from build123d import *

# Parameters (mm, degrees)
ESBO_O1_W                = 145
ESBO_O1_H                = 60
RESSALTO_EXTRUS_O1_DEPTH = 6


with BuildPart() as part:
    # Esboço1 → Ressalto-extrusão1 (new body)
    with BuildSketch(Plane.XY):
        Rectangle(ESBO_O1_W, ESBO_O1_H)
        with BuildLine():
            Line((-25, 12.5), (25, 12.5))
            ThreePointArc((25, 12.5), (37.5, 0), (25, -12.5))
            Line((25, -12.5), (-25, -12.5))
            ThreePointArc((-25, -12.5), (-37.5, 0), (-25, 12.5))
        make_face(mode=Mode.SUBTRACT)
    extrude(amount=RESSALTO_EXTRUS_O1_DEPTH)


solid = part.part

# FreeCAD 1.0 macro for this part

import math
import FreeCAD as App
import Part
import Sketcher

V = App.Vector


def add_polygon(sketch, points):
    """Adds a closed chain of lines whose ends are joined by coincident constraints."""
    first, n = sketch.GeometryCount, len(points)
    for a, b in zip(points, points[1:] + points[:1]):
        sketch.addGeometry(Part.LineSegment(App.Vector(*a, 0), App.Vector(*b, 0)), False)
    for i in range(n):
        sketch.addConstraint(Sketcher.Constraint("Coincident", first + i, 2, first + (i + 1) % n, 1))

doc = App.newDocument("Part")
body = doc.addObject("PartDesign::Body", "Body")

sketch1 = body.newObject("Sketcher::SketchObject", "Sketch")
sketch1.AttachmentSupport = (doc.getObject("XY_Plane"), [""])
sketch1.MapMode = "FlatFace"
add_polygon(sketch1, [(-72.5, 30), (-72.5, -30), (72.5, -30), (72.5, 30)])
sketch1.addGeometry(Part.ArcOfCircle(Part.Circle(V(-25, 0, 0), V(0, 0, 1), 12.5), math.radians(90), math.radians(270)), False)
sketch1.addGeometry(Part.LineSegment(V(-25, 12.5, 0), V(25, 12.5, 0)), False)
sketch1.addGeometry(Part.ArcOfCircle(Part.Circle(V(25, 0, 0), V(0, 0, 1), 12.5), math.radians(-90), math.radians(90)), False)
sketch1.addGeometry(Part.LineSegment(V(25, -12.5, 0), V(-25, -12.5, 0)), False)
sketch1.addConstraint([
    Sketcher.Constraint("Tangent", 4, 1, 5, 1),
    Sketcher.Constraint("Tangent", 5, 2, 6, 2),
    Sketcher.Constraint("Tangent", 6, 1, 7, 1),
    Sketcher.Constraint("Tangent", 7, 2, 4, 2),
    Sketcher.Constraint("Vertical", 0),
    Sketcher.Constraint("Horizontal", 1),
    Sketcher.Constraint("Vertical", 2),
    Sketcher.Constraint("Horizontal", 3),
    Sketcher.Constraint("Horizontal", 5),
    Sketcher.Constraint("Horizontal", 7),
    Sketcher.Constraint("Symmetric", 4, 3, 6, 3, -1, 1),
    Sketcher.Constraint("Symmetric", 0, 2, 2, 2, -1, 1),
    Sketcher.Constraint("Radius", 4, 12.5),
    Sketcher.Constraint("DistanceX", 1, 1, 1, 2, 145.0),
    Sketcher.Constraint("DistanceX", 5, 1, 5, 2, 50.0),
    Sketcher.Constraint("DistanceY", 0, 2, 0, 1, 60.0),
])
pad1 = body.newObject("PartDesign::Pad", "Pad")
pad1.Profile = sketch1
pad1.Length = 6

doc.recompute()
